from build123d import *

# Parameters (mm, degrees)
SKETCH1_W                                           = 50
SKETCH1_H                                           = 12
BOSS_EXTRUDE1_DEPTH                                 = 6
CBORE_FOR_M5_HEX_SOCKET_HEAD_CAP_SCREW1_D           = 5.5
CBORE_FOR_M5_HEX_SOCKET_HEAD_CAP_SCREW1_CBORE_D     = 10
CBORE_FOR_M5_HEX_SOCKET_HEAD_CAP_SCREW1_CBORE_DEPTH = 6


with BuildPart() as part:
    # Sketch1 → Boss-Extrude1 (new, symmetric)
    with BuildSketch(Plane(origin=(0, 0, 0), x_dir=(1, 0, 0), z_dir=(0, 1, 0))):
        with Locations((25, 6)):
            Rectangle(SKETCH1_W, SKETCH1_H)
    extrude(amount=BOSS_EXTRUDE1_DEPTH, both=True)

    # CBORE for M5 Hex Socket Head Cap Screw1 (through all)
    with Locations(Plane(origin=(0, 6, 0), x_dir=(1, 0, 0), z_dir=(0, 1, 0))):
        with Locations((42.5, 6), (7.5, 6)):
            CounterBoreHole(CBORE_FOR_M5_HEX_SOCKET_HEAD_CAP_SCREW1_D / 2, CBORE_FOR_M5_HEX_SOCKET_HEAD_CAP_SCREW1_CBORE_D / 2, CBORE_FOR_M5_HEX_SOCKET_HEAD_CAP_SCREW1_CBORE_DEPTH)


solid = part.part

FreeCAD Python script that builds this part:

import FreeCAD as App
import Part
import Sketcher
Q = App.Units.Quantity

doc = App.newDocument("Part")
body = doc.addObject("PartDesign::Body", "Body")

sketch1 = doc.addObject("Sketcher::SketchObject", "Sketch")
body.addObject(sketch1)
sketch1.AttachmentSupport = (doc.XZ_Plane, [""])
sketch1.MapMode = "FlatFace"
sketch1.addGeometry(Part.LineSegment(App.Vector(0, -12, 0), App.Vector(0, 0, 0)), False)
sketch1.addGeometry(Part.LineSegment(App.Vector(0, 0, 0), App.Vector(50, 0, 0)), False)
sketch1.addGeometry(Part.LineSegment(App.Vector(50, 0, 0), App.Vector(50, -12, 0)), False)
sketch1.addGeometry(Part.LineSegment(App.Vector(50, -12, 0), App.Vector(0, -12, 0)), False)
sketch1.addConstraint(Sketcher.Constraint("Coincident", 0, 2, 1, 1))
sketch1.addConstraint(Sketcher.Constraint("Coincident", 1, 2, 2, 1))
sketch1.addConstraint(Sketcher.Constraint("Coincident", 2, 2, 3, 1))
sketch1.addConstraint(Sketcher.Constraint("Coincident", 3, 2, 0, 1))
sketch1.addConstraint(Sketcher.Constraint("Vertical", 0))
sketch1.addConstraint(Sketcher.Constraint("Horizontal", 1))
sketch1.addConstraint(Sketcher.Constraint("Vertical", 2))
sketch1.addConstraint(Sketcher.Constraint("Horizontal", 3))
sketch1.addConstraint(Sketcher.Constraint("Coincident", 0, 2, -1, 1))
sketch1.addConstraint(Sketcher.Constraint("DistanceX", 1, 1, 1, 2, Q("50 mm")))
sketch1.addConstraint(Sketcher.Constraint("DistanceY", 0, 1, 0, 2, Q("12 mm")))
pad1 = doc.addObject("PartDesign::Pad", "Pad")
body.addObject(pad1)
pad1.Profile = sketch1
pad1.Length = 12
pad1.Midplane = True

sketch2 = doc.addObject("Sketcher::SketchObject", "Sketch001")
body.addObject(sketch2)
sketch2.AttachmentSupport = (doc.XZ_Plane, [""])
sketch2.MapMode = "FlatFace"
sketch2.AttachmentOffset = App.Placement(App.Vector(0, 0, -6), App.Rotation())
sketch2.addGeometry(Part.Circle(App.Vector(42.5, -6, 0), App.Vector(0, 0, 1), 2.8), False)
sketch2.addGeometry(Part.Circle(App.Vector(7.5, -6, 0), App.Vector(0, 0, 1), 2.8), False)
sketch2.addConstraint(Sketcher.Constraint("Equal", 0, 1))
sketch2.addConstraint(Sketcher.Constraint("Horizontal", 0, 3, 1, 3))
sketch2.addConstraint(Sketcher.Constraint("Diameter", 0, Q("5.5 mm")))
sketch2.addConstraint(Sketcher.Constraint("DistanceY", 0, 3, -1, 1, Q("6 mm")))
sketch2.addConstraint(Sketcher.Constraint("DistanceX", 1, 3, 0, 3, Q("35 mm")))
sketch2.addConstraint(Sketcher.Constraint("DistanceX", -1, 1, 0, 3, Q("42.5 mm")))
doc.recompute()
hole = doc.addObject("PartDesign::Hole", "Hole")
body.addObject(hole)
hole.Profile = sketch2
hole.ThreadType = "None"
hole.Diameter = 5.5
hole.DepthType = "ThroughAll"
hole.HoleCutType = "Counterbore"
hole.HoleCutDiameter = 10
hole.HoleCutDepth = 6
hole.Reversed = True

doc.recompute()
